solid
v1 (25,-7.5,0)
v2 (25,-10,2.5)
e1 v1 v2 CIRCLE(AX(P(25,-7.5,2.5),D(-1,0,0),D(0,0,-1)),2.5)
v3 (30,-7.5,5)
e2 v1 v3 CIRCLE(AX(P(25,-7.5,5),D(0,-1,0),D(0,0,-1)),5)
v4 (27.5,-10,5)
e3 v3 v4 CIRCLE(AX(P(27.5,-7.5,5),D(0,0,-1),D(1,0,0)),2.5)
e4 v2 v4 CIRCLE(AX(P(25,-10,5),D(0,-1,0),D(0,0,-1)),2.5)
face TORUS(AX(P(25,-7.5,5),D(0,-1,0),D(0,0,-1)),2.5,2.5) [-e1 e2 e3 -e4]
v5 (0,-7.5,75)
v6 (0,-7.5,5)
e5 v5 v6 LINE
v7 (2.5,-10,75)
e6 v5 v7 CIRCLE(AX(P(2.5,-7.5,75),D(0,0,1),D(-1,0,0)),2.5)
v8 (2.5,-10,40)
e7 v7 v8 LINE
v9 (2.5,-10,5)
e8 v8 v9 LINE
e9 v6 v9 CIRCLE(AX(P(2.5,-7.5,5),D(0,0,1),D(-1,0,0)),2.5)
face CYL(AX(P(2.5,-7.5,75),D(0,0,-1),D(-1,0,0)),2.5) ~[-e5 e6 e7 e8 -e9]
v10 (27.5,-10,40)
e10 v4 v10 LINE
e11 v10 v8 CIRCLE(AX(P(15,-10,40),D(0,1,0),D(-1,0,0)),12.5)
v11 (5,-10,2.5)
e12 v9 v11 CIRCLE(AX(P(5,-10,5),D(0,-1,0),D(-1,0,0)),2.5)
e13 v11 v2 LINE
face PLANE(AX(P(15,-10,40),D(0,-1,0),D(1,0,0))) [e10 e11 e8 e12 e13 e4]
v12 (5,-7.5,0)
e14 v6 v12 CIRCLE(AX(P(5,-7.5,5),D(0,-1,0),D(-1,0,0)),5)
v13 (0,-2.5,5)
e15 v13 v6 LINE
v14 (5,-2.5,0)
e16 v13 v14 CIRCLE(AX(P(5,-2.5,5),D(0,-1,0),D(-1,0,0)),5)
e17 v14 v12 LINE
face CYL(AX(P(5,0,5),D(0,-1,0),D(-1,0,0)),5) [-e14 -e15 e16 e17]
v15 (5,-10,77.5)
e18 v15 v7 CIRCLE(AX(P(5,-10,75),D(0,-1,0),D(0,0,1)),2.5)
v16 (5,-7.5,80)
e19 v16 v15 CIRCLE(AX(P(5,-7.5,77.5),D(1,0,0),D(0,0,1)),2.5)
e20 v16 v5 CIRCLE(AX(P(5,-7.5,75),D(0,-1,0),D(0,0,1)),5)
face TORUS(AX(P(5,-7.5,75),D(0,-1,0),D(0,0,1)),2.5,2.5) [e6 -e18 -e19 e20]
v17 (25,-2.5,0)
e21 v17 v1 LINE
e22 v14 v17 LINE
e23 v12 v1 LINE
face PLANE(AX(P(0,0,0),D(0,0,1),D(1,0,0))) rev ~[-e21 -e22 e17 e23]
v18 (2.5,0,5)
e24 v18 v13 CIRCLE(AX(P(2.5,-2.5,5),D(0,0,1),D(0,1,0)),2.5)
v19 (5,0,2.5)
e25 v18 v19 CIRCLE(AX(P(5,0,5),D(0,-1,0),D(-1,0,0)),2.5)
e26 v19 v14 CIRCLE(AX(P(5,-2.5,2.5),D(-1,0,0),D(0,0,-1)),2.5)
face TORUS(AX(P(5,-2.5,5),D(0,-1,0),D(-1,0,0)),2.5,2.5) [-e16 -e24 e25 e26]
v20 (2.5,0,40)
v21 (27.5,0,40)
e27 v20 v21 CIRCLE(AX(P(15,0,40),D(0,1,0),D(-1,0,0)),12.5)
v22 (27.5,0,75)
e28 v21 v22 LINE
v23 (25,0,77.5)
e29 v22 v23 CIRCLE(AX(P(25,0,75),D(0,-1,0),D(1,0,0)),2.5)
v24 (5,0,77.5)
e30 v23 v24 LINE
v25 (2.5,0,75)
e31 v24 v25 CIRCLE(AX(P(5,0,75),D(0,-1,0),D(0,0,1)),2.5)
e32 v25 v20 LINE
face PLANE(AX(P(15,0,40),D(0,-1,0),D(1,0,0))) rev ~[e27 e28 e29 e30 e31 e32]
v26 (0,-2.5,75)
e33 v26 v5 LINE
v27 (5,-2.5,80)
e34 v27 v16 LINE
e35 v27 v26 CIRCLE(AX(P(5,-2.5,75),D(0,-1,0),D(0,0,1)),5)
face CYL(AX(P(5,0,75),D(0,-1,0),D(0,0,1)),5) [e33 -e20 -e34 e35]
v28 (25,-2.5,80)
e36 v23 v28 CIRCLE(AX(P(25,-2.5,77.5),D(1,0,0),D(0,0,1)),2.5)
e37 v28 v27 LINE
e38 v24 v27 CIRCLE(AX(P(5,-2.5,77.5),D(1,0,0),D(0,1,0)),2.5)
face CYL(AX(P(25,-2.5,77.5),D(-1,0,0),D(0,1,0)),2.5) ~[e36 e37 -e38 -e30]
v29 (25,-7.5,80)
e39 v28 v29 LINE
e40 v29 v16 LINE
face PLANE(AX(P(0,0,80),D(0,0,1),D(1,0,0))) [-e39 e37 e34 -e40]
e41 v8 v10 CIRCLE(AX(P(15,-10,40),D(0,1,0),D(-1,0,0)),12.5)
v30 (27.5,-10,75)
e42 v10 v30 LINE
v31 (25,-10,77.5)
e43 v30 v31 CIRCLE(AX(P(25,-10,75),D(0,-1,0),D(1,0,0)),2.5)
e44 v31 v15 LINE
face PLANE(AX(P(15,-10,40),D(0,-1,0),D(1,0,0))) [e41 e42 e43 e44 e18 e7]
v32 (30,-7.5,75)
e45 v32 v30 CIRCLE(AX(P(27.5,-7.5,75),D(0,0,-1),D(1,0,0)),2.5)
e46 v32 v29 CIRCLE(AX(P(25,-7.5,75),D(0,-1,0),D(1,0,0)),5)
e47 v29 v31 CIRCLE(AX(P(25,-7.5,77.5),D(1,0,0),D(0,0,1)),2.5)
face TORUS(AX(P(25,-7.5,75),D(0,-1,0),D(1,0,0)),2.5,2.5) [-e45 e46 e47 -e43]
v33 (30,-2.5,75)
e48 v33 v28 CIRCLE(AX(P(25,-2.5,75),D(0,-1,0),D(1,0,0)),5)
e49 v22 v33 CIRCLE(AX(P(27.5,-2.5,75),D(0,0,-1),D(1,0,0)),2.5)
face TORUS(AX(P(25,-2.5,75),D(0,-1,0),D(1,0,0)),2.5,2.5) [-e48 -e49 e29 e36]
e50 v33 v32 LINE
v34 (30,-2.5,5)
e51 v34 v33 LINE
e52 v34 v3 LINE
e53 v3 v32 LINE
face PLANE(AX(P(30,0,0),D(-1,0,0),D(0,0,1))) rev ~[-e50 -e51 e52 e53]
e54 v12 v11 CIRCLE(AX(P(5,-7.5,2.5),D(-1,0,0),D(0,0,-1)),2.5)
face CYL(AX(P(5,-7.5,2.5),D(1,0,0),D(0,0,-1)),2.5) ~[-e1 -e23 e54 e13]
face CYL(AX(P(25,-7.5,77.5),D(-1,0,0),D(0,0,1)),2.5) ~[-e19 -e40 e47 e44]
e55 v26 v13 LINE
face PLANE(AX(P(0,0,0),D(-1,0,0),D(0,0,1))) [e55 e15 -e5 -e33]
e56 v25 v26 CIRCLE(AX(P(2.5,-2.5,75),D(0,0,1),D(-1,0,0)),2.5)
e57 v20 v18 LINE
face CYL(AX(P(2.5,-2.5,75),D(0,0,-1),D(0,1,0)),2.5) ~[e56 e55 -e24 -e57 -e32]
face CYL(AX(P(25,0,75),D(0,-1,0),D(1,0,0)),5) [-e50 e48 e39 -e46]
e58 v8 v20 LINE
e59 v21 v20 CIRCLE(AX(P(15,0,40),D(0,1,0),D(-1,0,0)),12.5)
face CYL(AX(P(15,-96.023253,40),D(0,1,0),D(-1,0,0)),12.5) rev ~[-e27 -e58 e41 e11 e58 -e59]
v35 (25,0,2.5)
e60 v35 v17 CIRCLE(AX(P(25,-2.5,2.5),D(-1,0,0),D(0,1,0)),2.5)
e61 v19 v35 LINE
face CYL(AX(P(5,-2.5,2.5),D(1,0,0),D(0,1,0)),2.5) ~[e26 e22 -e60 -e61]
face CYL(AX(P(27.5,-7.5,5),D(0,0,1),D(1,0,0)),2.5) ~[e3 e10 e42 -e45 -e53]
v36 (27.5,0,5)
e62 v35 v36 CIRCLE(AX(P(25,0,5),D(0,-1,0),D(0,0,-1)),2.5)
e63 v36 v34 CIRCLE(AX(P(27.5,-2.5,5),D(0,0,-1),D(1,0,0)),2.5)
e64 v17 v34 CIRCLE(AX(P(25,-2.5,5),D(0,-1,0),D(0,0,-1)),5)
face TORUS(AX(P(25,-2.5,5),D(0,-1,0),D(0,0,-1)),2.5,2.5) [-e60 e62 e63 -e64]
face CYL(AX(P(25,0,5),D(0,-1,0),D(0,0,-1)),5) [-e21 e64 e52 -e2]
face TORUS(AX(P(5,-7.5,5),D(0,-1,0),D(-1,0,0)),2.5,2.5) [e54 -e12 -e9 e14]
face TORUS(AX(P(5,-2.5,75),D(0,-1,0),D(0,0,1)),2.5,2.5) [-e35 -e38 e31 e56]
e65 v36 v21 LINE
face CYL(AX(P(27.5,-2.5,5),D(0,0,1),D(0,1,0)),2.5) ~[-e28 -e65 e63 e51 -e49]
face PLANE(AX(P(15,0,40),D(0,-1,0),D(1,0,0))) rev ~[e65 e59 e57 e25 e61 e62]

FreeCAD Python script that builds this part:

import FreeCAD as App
import Part
import Sketcher

V = App.Vector
Q = App.Units.Quantity


def edges_at(feature, points):
    """Names of the edges that pass closest to the given points."""
    edges = feature.Shape.Edges
    near = lambda p: min(range(len(edges)), key=lambda i: edges[i].distToShape(Part.Vertex(*p))[0])
    return sorted({f"Edge{near(p) + 1}" for p in points})


def add_polygon(sketch, points):
    """Adds a closed chain of lines whose ends are joined by coincident constraints."""
    first, n = sketch.GeometryCount, len(points)
    for a, b in zip(points, points[1:] + points[:1]):
        sketch.addGeometry(Part.LineSegment(App.Vector(*a, 0), App.Vector(*b, 0)), False)
    for i in range(n):
        sketch.addConstraint(Sketcher.Constraint("Coincident", first + i, 2, first + (i + 1) % n, 1))

doc = App.newDocument("Part")
body = doc.addObject("PartDesign::Body", "Body")

sketch1 = doc.addObject("Sketcher::SketchObject", "Sketch")
body.addObject(sketch1)
sketch1.AttachmentSupport = (doc.XZ_Plane, [""])
sketch1.MapMode = "FlatFace"
add_polygon(sketch1, [(0, 80), (0, 0), (30, 0), (30, 80)])
sketch1.addConstraint([
    Sketcher.Constraint("Vertical", 0),
    Sketcher.Constraint("Horizontal", 1),
    Sketcher.Constraint("Vertical", 2),
    Sketcher.Constraint("Horizontal", 3),
    Sketcher.Constraint("Coincident", 0, 2, -1, 1),
    Sketcher.Constraint("DistanceX", 1, 1, 1, 2, Q("30 mm")),
    Sketcher.Constraint("DistanceY", 0, 2, 0, 1, Q("80 mm")),
])
pad1 = doc.addObject("PartDesign::Pad", "Pad")
body.addObject(pad1)
pad1.Profile = sketch1
pad1.Length = 10
doc.recompute()

fillet = doc.addObject("PartDesign::Fillet", "Fillet")
body.addObject(fillet)
fillet.Base = (pad1, edges_at(pad1, [(30, -5, 80)]))
fillet.Radius = 5
doc.recompute()

fillet2 = doc.addObject("PartDesign::Fillet", "Fillet001")
body.addObject(fillet2)
fillet2.Base = (fillet, edges_at(fillet, [(0, -5, 80)]))
fillet2.Radius = 5
doc.recompute()

fillet3 = doc.addObject("PartDesign::Fillet", "Fillet002")
body.addObject(fillet3)
fillet3.Base = (fillet2, edges_at(fillet2, [(0, -5, 0)]))
fillet3.Radius = 5
doc.recompute()

fillet4 = doc.addObject("PartDesign::Fillet", "Fillet003")
body.addObject(fillet4)
fillet4.Base = (fillet3, edges_at(fillet3, [(30, -5, 0)]))
fillet4.Radius = 5
doc.recompute()

fillet5 = doc.addObject("PartDesign::Fillet", "Fillet004")
body.addObject(fillet5)
fillet5.Base = (fillet4, edges_at(fillet4, [(28.536, -10, 78.536)]))
fillet5.Radius = 2.5
doc.recompute()

fillet6 = doc.addObject("PartDesign::Fillet", "Fillet005")
body.addObject(fillet6)
fillet6.Base = (fillet5, edges_at(fillet5, [(28.536, 0, 78.536)]))
fillet6.Radius = 2.5

sketch2 = doc.addObject("Sketcher::SketchObject", "Sketch001")
body.addObject(sketch2)
sketch2.AttachmentSupport = (doc.XZ_Plane, [""])
sketch2.MapMode = "FlatFace"
sketch2.AttachmentOffset = App.Placement(V(0, 0, 10), App.Rotation())
sketch2.addGeometry(Part.Circle(V(15, 40, 0), V(0, 0, 1), 12.5), False)
sketch2.addConstraint([
    Sketcher.Constraint("Diameter", 0, Q("25 mm")),
    Sketcher.Constraint("DistanceX", -1, 1, 0, 3, Q("15 mm")),
    Sketcher.Constraint("DistanceY", -1, 1, 0, 3, Q("40 mm")),
])
doc.recompute()
hole = doc.addObject("PartDesign::Hole", "Hole")
body.addObject(hole)
hole.Profile = sketch2
hole.ThreadType = "None"
hole.Diameter = 25
hole.DepthType = "ThroughAll"

doc.recompute()
